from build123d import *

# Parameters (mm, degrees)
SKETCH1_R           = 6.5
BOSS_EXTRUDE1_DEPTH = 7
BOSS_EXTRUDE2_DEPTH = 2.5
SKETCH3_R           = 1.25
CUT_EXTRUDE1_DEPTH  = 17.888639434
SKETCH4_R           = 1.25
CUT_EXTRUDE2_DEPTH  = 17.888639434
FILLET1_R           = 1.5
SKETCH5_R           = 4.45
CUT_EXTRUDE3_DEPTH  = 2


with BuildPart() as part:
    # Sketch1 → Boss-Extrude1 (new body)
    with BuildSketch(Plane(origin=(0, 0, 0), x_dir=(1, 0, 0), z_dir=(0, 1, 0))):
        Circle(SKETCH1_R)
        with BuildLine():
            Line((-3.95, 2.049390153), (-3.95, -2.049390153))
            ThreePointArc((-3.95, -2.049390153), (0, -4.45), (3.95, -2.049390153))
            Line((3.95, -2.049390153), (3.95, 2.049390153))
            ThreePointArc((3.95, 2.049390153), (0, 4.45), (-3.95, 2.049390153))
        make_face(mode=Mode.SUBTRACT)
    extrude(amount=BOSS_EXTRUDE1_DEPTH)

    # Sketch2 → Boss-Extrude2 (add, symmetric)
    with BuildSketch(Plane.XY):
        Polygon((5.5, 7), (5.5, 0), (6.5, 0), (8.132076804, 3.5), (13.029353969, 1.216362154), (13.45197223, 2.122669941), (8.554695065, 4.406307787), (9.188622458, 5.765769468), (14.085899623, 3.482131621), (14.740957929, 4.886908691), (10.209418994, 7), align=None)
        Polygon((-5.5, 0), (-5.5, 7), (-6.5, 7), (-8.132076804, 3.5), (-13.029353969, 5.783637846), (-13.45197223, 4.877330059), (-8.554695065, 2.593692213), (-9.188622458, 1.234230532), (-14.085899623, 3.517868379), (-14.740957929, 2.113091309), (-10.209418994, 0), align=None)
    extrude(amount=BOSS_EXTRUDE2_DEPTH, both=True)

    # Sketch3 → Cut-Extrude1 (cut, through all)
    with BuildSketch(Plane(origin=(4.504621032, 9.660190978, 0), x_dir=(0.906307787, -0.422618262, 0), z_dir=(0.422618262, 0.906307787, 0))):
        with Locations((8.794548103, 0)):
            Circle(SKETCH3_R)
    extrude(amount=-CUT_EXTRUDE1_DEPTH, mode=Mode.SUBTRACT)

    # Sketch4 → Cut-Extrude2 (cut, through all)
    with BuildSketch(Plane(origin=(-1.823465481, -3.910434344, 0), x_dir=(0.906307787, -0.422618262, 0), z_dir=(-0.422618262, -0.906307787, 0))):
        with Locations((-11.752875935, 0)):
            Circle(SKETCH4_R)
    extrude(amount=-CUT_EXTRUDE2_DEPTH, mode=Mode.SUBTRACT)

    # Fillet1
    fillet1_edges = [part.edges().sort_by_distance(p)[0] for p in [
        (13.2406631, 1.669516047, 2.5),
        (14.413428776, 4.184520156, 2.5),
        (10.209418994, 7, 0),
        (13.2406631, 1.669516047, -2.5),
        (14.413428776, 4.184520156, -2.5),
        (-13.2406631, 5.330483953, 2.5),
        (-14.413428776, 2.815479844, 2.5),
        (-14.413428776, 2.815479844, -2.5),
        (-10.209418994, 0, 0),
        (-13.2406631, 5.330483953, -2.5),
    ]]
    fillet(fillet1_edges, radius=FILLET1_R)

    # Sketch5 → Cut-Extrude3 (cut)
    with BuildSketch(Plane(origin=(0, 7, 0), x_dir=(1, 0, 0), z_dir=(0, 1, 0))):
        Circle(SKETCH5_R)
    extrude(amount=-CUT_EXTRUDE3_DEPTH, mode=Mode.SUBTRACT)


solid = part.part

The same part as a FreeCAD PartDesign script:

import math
import FreeCAD as App
import Part
import Sketcher
Q = App.Units.Quantity


def edges_at(feature, points):
    """Names of the edges that pass closest to the given points."""
    edges = feature.Shape.Edges
    near = lambda p: min(range(len(edges)), key=lambda i: edges[i].distToShape(Part.Vertex(*p))[0])
    return sorted({f"Edge{near(p) + 1}" for p in points})


def add_polygon(sketch, points):
    """Adds a closed chain of lines whose ends are joined by coincident constraints."""
    first, n = sketch.GeometryCount, len(points)
    for a, b in zip(points, points[1:] + points[:1]):
        sketch.addGeometry(Part.LineSegment(App.Vector(*a, 0), App.Vector(*b, 0)), False)
    for i in range(n):
        sketch.addConstraint(Sketcher.Constraint("Coincident", first + i, 2, first + (i + 1) % n, 1))

doc = App.newDocument("Part")
body = doc.addObject("PartDesign::Body", "Body")

# Sketch on XZ plane
sketch1 = body.newObject("Sketcher::SketchObject", "Sketch")
sketch1.AttachmentSupport = (doc.getObject("XZ_Plane"), [""])
sketch1.MapMode = "FlatFace"
sketch1.addGeometry([
    Part.Circle(App.Vector(0, 0, 0), App.Vector(0, 0, 1), 6.5),  # 0
    Part.LineSegment(App.Vector(-4, 2, 0), App.Vector(-4, -2, 0)),  # 1
    Part.ArcOfCircle(Part.Circle(App.Vector(0, 0, 0), App.Vector(0, 0, 1), 4.5), math.radians(-153), math.radians(-27)),  # 2
    Part.LineSegment(App.Vector(4, -2, 0), App.Vector(4, 2, 0)),  # 3
    Part.ArcOfCircle(Part.Circle(App.Vector(0, 0, 0), App.Vector(0, 0, 1), 4.5), math.radians(27), math.radians(153)),  # 4
], False)
sketch1.addConstraint([
    Sketcher.Constraint("Coincident", 1, 2, 2, 1),
    Sketcher.Constraint("Coincident", 2, 2, 3, 1),
    Sketcher.Constraint("Coincident", 3, 2, 4, 1),
    Sketcher.Constraint("Coincident", 4, 2, 1, 1),
    Sketcher.Constraint("Vertical", 1),
    Sketcher.Constraint("Vertical", 3),
    Sketcher.Constraint("Coincident", 0, 3, -1, 1),
    Sketcher.Constraint("Coincident", 2, 3, -1, 1),
    Sketcher.Constraint("Coincident", 4, 3, -1, 1),
    Sketcher.Constraint("Equal", 2, 4),
    Sketcher.Constraint("Horizontal", 1, 2, 2, 2),
    Sketcher.Constraint("Diameter", 0, Q("13 mm")),
    Sketcher.Constraint("Radius", 2, Q("4.45 mm")),
    Sketcher.Constraint("DistanceX", 1, 2, 2, 2, Q("7.9 mm")),
])
pad1 = body.newObject("PartDesign::Pad", "Pad")
pad1.Profile = sketch1
pad1.Length = 7
pad1.Reversed = True

# Sketch on XY plane
sketch2 = body.newObject("Sketcher::SketchObject", "Sketch001")
sketch2.AttachmentSupport = (doc.getObject("XY_Plane"), [""])
sketch2.MapMode = "FlatFace"
add_polygon(sketch2, [(5.5, 7), (5.5, 0), (6.5, 0), (8.1, 3.5), (13, 1.2), (13.5, 2.1), (8.6, 4.4), (9.2, 5.8), (14.1, 3.5), (14.7, 4.9), (10.2, 7)])  # lines 0-10
add_polygon(sketch2, [(-5.5, 0), (-5.5, 7), (-6.5, 7), (-8.1, 3.5), (-13, 5.8), (-13.5, 4.9), (-8.6, 2.6), (-9.2, 1.2), (-14.1, 3.5), (-14.7, 2.1), (-10.2, 0)])  # lines 11-21
sketch2.addConstraint([
    Sketcher.Constraint("Vertical", 0),
    Sketcher.Constraint("Horizontal", 1),
    Sketcher.Constraint("Horizontal", 10),
    Sketcher.Constraint("Vertical", 11),
    Sketcher.Constraint("Horizontal", 12),
    Sketcher.Constraint("Horizontal", 21),
    Sketcher.Constraint("Symmetric", 0, 2, 21, 2, -1, 1),
    Sketcher.Constraint("Symmetric", 2, 2, 13, 2, -2),
    Sketcher.Constraint("PointOnObject", 0, 2, -1),
    Sketcher.Constraint("Perpendicular", 2, 3),
    Sketcher.Constraint("Perpendicular", 3, 4),
    Sketcher.Constraint("Perpendicular", 4, 5),
    Sketcher.Constraint("Perpendicular", 5, 6),
    Sketcher.Constraint("Perpendicular", 6, 7),
    Sketcher.Constraint("Perpendicular", 7, 8),
    Sketcher.Constraint("Perpendicular", 8, 9),
    Sketcher.Constraint("Perpendicular", 9, 13),
    Sketcher.Constraint("Perpendicular", 13, 14),
    Sketcher.Constraint("Perpendicular", 14, 15),
    Sketcher.Constraint("Perpendicular", 15, 16),
    Sketcher.Constraint("Perpendicular", 16, 17),
    Sketcher.Constraint("Perpendicular", 17, 18),
    Sketcher.Constraint("Perpendicular", 18, 19),
    Sketcher.Constraint("Perpendicular", 19, 20),
    Sketcher.Constraint("Horizontal", 10, 2, 11, 2),
    Sketcher.Constraint("Equal", 1, 12),
    Sketcher.Constraint("Equal", 10, 21),
    Sketcher.Constraint("Equal", 3, 5),
    Sketcher.Constraint("Equal", 5, 7),
    Sketcher.Constraint("Equal", 7, 14),
    Sketcher.Constraint("Equal", 4, 15),
    Sketcher.Constraint("Equal", 14, 16),
    Sketcher.Constraint("Equal", 6, 17),
    Sketcher.Constraint("Equal", 16, 18),
    Sketcher.Constraint("DistanceX", 1, 1, 1, 2, Q("1 mm")),
    Sketcher.Constraint("DistanceY", 0, 2, 0, 1, Q("7 mm")),
    Sketcher.Constraint("Angle", 2, Q("65 deg")),
    Sketcher.Constraint("Distance", 4, Q("1 mm")),
    Sketcher.Constraint("Distance", 9, Q("5 mm")),
    Sketcher.Constraint("DistanceX", 11, 2, 10, 2, Q("11 mm")),
    Sketcher.Constraint("Distance", 6, Q("1.5 mm")),
    Sketcher.Constraint("Distance", 8, Q("1.55 mm")),
])
pad2 = body.newObject("PartDesign::Pad", "Pad001")
pad2.Profile = sketch2
pad2.Length = 5
pad2.Midplane = True

# Sketch on an angled plane
sketch3 = body.newObject("Sketcher::SketchObject", "Sketch002")
sketch3.Placement = App.Placement(App.Vector(4.504621, 9.660191, 0), App.Rotation(App.Vector(0.906307787, -0.422618262, 0), App.Vector(0, 0, -1), App.Vector(0.422618262, 0.906307787, 0), "ZXY"))
sketch3.addGeometry(Part.Circle(App.Vector(8.8, 0, 0), App.Vector(0, 0, 1), 1.2), False)
sketch3.addConstraint([
    Sketcher.Constraint("PointOnObject", 0, 3, -1),
    Sketcher.Constraint("Diameter", 0, Q("2.5 mm")),
    Sketcher.Constraint("DistanceX", -1, 1, 0, 3, Q("8.794548 mm")),
])
pocket1 = body.newObject("PartDesign::Pocket", "Pocket")
pocket1.Profile = sketch3
pocket1.Type = "ThroughAll"

# Sketch on an angled plane
sketch4 = body.newObject("Sketcher::SketchObject", "Sketch003")
sketch4.Placement = App.Placement(App.Vector(-1.823465, -3.910434, 0), App.Rotation(App.Vector(0.906307787, -0.422618262, 0), App.Vector(0, 0, 1), App.Vector(-0.422618262, -0.906307787, 0), "ZXY"))
sketch4.addGeometry(Part.Circle(App.Vector(-11.8, 0, 0), App.Vector(0, 0, 1), 1.2), False)
sketch4.addConstraint([
    Sketcher.Constraint("PointOnObject", 0, 3, -1),
    Sketcher.Constraint("Diameter", 0, Q("2.5 mm")),
    Sketcher.Constraint("DistanceX", 0, 3, -1, 1, Q("11.752876 mm")),
])
pocket2 = body.newObject("PartDesign::Pocket", "Pocket001")
pocket2.Profile = sketch4
pocket2.Type = "ThroughAll"
doc.recompute()

fillet = body.newObject("PartDesign::Fillet", "Fillet")
fillet.Base = (pocket2, edges_at(pocket2, [
    (13.241, 1.67, 2.5),
    (14.413, 4.185, 2.5),
    (10.209, 7, 0),
    (13.241, 1.67, -2.5),
    (14.413, 4.185, -2.5),
    (-13.241, 5.33, 2.5),
    (-14.413, 2.815, 2.5),
    (-14.413, 2.815, -2.5),
    (-10.209, 0, 0),
    (-13.241, 5.33, -2.5),
]))
fillet.Radius = 1.5

# Sketch on XZ plane
sketch5 = body.newObject("Sketcher::SketchObject", "Sketch004")
sketch5.AttachmentSupport = (doc.getObject("XZ_Plane"), [""])
sketch5.MapMode = "FlatFace"
sketch5.AttachmentOffset = App.Placement(App.Vector(0, 0, -7), App.Rotation())
sketch5.addGeometry(Part.Circle(App.Vector(0, 0, 0), App.Vector(0, 0, 1), 4.5), False)
sketch5.addConstraint([
    Sketcher.Constraint("Coincident", 0, 3, -1, 1),
    Sketcher.Constraint("Diameter", 0, Q("8.9 mm")),
])
pocket3 = body.newObject("PartDesign::Pocket", "Pocket002")
pocket3.Profile = sketch5
pocket3.Length = 2
pocket3.Reversed = True

doc.recompute()
